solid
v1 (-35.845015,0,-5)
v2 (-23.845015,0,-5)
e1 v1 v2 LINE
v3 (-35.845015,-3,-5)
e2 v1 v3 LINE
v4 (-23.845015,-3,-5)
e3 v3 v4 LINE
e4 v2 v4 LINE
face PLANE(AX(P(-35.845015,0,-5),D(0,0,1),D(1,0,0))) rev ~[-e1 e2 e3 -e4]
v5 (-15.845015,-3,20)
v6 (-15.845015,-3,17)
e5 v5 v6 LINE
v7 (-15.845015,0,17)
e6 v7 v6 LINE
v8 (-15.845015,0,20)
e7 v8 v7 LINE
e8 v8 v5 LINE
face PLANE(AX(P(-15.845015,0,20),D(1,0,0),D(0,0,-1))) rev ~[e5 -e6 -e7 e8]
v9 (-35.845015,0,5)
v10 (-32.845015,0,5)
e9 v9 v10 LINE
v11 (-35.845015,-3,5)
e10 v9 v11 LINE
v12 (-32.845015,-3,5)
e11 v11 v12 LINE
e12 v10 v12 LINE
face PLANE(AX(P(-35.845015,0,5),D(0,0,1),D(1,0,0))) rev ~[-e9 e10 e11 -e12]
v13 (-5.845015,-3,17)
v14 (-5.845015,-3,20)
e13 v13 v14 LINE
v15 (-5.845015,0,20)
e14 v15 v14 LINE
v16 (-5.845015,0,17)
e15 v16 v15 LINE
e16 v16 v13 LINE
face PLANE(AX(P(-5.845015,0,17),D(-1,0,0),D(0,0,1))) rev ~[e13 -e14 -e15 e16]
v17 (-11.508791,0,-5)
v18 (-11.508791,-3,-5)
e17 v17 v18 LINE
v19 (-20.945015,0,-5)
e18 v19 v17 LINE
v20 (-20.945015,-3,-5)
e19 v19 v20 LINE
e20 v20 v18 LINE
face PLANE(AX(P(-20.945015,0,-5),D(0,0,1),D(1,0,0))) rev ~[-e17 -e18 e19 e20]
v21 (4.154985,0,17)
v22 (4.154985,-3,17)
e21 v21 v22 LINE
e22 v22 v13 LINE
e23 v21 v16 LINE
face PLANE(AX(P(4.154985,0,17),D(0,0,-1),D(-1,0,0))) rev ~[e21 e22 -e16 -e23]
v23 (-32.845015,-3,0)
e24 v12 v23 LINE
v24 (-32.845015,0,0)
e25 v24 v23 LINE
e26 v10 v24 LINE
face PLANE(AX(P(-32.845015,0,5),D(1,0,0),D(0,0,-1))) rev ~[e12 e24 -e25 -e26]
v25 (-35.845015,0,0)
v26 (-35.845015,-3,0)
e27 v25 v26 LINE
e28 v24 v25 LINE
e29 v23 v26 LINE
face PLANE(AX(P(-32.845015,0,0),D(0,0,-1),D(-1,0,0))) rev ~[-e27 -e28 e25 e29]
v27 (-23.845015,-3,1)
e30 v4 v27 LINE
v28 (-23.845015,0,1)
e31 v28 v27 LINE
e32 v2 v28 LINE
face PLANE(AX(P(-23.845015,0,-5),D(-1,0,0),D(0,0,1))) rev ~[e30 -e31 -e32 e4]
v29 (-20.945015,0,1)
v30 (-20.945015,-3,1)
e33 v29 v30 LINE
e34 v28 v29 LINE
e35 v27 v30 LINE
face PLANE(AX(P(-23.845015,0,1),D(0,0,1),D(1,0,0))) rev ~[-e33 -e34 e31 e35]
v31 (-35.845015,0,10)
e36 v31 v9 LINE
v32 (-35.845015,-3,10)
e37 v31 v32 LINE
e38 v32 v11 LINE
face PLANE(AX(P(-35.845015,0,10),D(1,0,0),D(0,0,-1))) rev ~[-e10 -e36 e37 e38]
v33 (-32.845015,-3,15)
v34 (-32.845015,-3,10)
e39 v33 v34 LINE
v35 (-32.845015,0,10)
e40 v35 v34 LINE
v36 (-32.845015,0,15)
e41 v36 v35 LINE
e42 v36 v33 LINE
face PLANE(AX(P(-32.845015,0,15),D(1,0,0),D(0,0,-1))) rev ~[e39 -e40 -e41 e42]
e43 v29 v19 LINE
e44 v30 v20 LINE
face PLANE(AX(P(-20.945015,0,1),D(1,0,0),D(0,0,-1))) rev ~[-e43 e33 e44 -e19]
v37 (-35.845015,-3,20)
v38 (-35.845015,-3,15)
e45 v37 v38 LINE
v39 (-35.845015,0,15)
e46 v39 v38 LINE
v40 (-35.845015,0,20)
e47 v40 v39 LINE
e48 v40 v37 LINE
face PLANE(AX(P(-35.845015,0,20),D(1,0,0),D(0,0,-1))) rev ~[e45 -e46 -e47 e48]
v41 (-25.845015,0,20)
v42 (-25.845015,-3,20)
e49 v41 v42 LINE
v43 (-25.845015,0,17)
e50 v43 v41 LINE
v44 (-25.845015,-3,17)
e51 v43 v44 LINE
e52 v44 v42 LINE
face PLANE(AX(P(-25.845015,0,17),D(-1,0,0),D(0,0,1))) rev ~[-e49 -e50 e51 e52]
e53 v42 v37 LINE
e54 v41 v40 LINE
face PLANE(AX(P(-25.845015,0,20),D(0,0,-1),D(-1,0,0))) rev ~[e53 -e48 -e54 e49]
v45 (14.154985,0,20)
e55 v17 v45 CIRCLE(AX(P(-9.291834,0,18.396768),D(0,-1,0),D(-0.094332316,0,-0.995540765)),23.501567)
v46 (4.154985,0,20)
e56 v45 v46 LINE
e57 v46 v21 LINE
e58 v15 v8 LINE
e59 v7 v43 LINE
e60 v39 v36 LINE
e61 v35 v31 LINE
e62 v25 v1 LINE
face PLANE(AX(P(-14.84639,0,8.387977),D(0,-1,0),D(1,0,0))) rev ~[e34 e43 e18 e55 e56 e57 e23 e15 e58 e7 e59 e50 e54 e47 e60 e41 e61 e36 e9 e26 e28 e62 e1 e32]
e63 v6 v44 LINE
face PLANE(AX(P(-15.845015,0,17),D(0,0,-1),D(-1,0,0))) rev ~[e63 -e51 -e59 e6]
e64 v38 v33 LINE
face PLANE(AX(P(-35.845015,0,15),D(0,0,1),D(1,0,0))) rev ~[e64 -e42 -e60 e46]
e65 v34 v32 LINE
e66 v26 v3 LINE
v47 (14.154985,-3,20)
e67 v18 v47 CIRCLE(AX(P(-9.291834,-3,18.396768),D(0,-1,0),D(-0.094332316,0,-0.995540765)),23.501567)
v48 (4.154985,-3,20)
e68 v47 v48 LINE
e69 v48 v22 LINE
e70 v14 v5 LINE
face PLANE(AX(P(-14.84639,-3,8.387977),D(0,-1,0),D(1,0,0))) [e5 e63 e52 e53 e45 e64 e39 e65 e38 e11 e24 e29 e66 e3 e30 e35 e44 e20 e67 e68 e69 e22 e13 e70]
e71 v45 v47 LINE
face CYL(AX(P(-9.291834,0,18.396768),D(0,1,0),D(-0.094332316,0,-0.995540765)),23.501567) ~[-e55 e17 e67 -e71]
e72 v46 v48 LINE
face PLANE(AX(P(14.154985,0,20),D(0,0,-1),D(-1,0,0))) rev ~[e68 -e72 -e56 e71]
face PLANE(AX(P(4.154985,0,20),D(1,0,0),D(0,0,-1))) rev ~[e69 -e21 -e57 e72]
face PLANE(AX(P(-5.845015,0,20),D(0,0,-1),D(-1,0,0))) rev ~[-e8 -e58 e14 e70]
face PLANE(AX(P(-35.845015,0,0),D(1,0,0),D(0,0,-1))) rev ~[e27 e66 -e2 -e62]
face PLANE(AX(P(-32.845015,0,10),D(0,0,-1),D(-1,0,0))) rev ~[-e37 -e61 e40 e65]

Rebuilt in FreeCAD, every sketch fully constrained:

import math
import FreeCAD as App
import Part
import Sketcher

V = App.Vector

doc = App.newDocument("Part")
body = doc.addObject("PartDesign::Body", "Body")

# Sketch on XZ plane
sketch1 = body.newObject("Sketcher::SketchObject", "Sketch")
sketch1.AttachmentSupport = (doc.getObject("XZ_Plane"), [""])
sketch1.MapMode = "FlatFace"
sketch1.addGeometry([
    Part.LineSegment(V(-20.9, -5, 0), V(-11.5, -5, 0)),  # 0
    Part.ArcOfCircle(Part.Circle(V(-9.3, 18.4, 0), V(0, 0, 1), 23.5), math.radians(-95), math.radians(4)),  # 1
    Part.LineSegment(V(14.2, 20, 0), V(4.2, 20, 0)),  # 2
    Part.LineSegment(V(4.2, 20, 0), V(4.2, 17, 0)),  # 3
    Part.LineSegment(V(4.2, 17, 0), V(-5.8, 17, 0)),  # 4
    Part.LineSegment(V(-5.8, 17, 0), V(-5.8, 20, 0)),  # 5
    Part.LineSegment(V(-5.8, 20, 0), V(-15.8, 20, 0)),  # 6
    Part.LineSegment(V(-15.8, 20, 0), V(-15.8, 17, 0)),  # 7
    Part.LineSegment(V(-15.8, 17, 0), V(-25.8, 17, 0)),  # 8
    Part.LineSegment(V(-25.8, 17, 0), V(-25.8, 20, 0)),  # 9
    Part.LineSegment(V(-25.8, 20, 0), V(-35.8, 20, 0)),  # 10
    Part.LineSegment(V(-35.8, 20, 0), V(-35.8, 15, 0)),  # 11
    Part.LineSegment(V(-35.8, 15, 0), V(-32.8, 15, 0)),  # 12
    Part.LineSegment(V(-32.8, 15, 0), V(-32.8, 10, 0)),  # 13
    Part.LineSegment(V(-32.8, 10, 0), V(-35.8, 10, 0)),  # 14
    Part.LineSegment(V(-35.8, 10, 0), V(-35.8, 5, 0)),  # 15
    Part.LineSegment(V(-35.8, 5, 0), V(-32.8, 5, 0)),  # 16
    Part.LineSegment(V(-32.8, 5, 0), V(-32.8, 0, 0)),  # 17
    Part.LineSegment(V(-32.8, 0, 0), V(-35.8, 0, 0)),  # 18
    Part.LineSegment(V(-35.8, 0, 0), V(-35.8, -5, 0)),  # 19
    Part.LineSegment(V(-35.8, -5, 0), V(-23.8, -5, 0)),  # 20
    Part.LineSegment(V(-23.8, -5, 0), V(-23.8, 1, 0)),  # 21
    Part.LineSegment(V(-23.8, 1, 0), V(-20.9, 1, 0)),  # 22
    Part.LineSegment(V(-20.9, 1, 0), V(-20.9, -5, 0)),  # 23
], False)
sketch1.addConstraint([
    Sketcher.Constraint("Coincident", 0, 2, 1, 1),
    Sketcher.Constraint("Coincident", 1, 2, 2, 1),
    Sketcher.Constraint("Coincident", 2, 2, 3, 1),
    Sketcher.Constraint("Coincident", 3, 2, 4, 1),
    Sketcher.Constraint("Coincident", 4, 2, 5, 1),
    Sketcher.Constraint("Coincident", 5, 2, 6, 1),
    Sketcher.Constraint("Coincident", 6, 2, 7, 1),
    Sketcher.Constraint("Coincident", 7, 2, 8, 1),
    Sketcher.Constraint("Coincident", 8, 2, 9, 1),
    Sketcher.Constraint("Coincident", 9, 2, 10, 1),
    Sketcher.Constraint("Coincident", 10, 2, 11, 1),
    Sketcher.Constraint("Coincident", 11, 2, 12, 1),
    Sketcher.Constraint("Coincident", 12, 2, 13, 1),
    Sketcher.Constraint("Coincident", 13, 2, 14, 1),
    Sketcher.Constraint("Coincident", 14, 2, 15, 1),
    Sketcher.Constraint("Coincident", 15, 2, 16, 1),
    Sketcher.Constraint("Coincident", 16, 2, 17, 1),
    Sketcher.Constraint("Coincident", 17, 2, 18, 1),
    Sketcher.Constraint("Coincident", 18, 2, 19, 1),
    Sketcher.Constraint("Coincident", 19, 2, 20, 1),
    Sketcher.Constraint("Coincident", 20, 2, 21, 1),
    Sketcher.Constraint("Coincident", 21, 2, 22, 1),
    Sketcher.Constraint("Coincident", 22, 2, 23, 1),
    Sketcher.Constraint("Coincident", 23, 2, 0, 1),
    Sketcher.Constraint("Horizontal", 0),
    Sketcher.Constraint("Horizontal", 2),
    Sketcher.Constraint("Vertical", 3),
    Sketcher.Constraint("Horizontal", 4),
    Sketcher.Constraint("Vertical", 5),
    Sketcher.Constraint("Horizontal", 6),
    Sketcher.Constraint("Vertical", 7),
    Sketcher.Constraint("Horizontal", 8),
    Sketcher.Constraint("Vertical", 9),
    Sketcher.Constraint("Horizontal", 10),
    Sketcher.Constraint("Vertical", 11),
    Sketcher.Constraint("Horizontal", 12),
    Sketcher.Constraint("Vertical", 13),
    Sketcher.Constraint("Horizontal", 14),
    Sketcher.Constraint("Vertical", 15),
    Sketcher.Constraint("Horizontal", 16),
    Sketcher.Constraint("Vertical", 17),
    Sketcher.Constraint("Horizontal", 18),
    Sketcher.Constraint("Vertical", 19),
    Sketcher.Constraint("Horizontal", 20),
    Sketcher.Constraint("Vertical", 21),
    Sketcher.Constraint("Horizontal", 22),
    Sketcher.Constraint("Vertical", 23),
    Sketcher.Constraint("Symmetric", 15, 2, 19, 2, -1),
    Sketcher.Constraint("PointOnObject", 17, 2, -1),
    Sketcher.Constraint("Horizontal", 2, 2, 5, 2),
    Sketcher.Constraint("Horizontal", 4, 2, 7, 2),
    Sketcher.Constraint("Horizontal", 6, 2, 9, 2),
    Sketcher.Constraint("Horizontal", 0, 2, 19, 2),
    Sketcher.Constraint("Vertical", 11, 2, 14, 2),
    Sketcher.Constraint("Vertical", 13, 2, 16, 2),
    Sketcher.Constraint("Equal", 2, 4),
    Sketcher.Constraint("Equal", 4, 6),
    Sketcher.Constraint("Equal", 6, 8),
    Sketcher.Constraint("Equal", 8, 10),
    Sketcher.Constraint("Equal", 18, 3),
    Sketcher.Constraint("Equal", 11, 13),
    Sketcher.Constraint("Equal", 13, 15),
    Sketcher.Constraint("Equal", 15, 17),
    Sketcher.Constraint("DistanceX", 2, 2, 2, 1, 10.0),
    Sketcher.Constraint("DistanceX", 12, 1, 12, 2, 3.0),
    Sketcher.Constraint("DistanceX", 20, 1, 20, 2, 12.0),
    Sketcher.Constraint("DistanceY", 11, 2, 11, 1, 5.0),
    Sketcher.Constraint("DistanceY", 21, 1, 21, 2, 6.0),
    Sketcher.Constraint("DistanceX", 22, 1, 22, 2, 2.9),
    Sketcher.Constraint("Radius", 1, 23.501567),
    Sketcher.Constraint("DistanceX", 0, 1, 0, 2, 9.436224),
    Sketcher.Constraint("DistanceX", 0, 2, -1, 1, 11.508791),
])
pad1 = body.newObject("PartDesign::Pad", "Pad")
pad1.Profile = sketch1
pad1.Length = 3

doc.recompute()
